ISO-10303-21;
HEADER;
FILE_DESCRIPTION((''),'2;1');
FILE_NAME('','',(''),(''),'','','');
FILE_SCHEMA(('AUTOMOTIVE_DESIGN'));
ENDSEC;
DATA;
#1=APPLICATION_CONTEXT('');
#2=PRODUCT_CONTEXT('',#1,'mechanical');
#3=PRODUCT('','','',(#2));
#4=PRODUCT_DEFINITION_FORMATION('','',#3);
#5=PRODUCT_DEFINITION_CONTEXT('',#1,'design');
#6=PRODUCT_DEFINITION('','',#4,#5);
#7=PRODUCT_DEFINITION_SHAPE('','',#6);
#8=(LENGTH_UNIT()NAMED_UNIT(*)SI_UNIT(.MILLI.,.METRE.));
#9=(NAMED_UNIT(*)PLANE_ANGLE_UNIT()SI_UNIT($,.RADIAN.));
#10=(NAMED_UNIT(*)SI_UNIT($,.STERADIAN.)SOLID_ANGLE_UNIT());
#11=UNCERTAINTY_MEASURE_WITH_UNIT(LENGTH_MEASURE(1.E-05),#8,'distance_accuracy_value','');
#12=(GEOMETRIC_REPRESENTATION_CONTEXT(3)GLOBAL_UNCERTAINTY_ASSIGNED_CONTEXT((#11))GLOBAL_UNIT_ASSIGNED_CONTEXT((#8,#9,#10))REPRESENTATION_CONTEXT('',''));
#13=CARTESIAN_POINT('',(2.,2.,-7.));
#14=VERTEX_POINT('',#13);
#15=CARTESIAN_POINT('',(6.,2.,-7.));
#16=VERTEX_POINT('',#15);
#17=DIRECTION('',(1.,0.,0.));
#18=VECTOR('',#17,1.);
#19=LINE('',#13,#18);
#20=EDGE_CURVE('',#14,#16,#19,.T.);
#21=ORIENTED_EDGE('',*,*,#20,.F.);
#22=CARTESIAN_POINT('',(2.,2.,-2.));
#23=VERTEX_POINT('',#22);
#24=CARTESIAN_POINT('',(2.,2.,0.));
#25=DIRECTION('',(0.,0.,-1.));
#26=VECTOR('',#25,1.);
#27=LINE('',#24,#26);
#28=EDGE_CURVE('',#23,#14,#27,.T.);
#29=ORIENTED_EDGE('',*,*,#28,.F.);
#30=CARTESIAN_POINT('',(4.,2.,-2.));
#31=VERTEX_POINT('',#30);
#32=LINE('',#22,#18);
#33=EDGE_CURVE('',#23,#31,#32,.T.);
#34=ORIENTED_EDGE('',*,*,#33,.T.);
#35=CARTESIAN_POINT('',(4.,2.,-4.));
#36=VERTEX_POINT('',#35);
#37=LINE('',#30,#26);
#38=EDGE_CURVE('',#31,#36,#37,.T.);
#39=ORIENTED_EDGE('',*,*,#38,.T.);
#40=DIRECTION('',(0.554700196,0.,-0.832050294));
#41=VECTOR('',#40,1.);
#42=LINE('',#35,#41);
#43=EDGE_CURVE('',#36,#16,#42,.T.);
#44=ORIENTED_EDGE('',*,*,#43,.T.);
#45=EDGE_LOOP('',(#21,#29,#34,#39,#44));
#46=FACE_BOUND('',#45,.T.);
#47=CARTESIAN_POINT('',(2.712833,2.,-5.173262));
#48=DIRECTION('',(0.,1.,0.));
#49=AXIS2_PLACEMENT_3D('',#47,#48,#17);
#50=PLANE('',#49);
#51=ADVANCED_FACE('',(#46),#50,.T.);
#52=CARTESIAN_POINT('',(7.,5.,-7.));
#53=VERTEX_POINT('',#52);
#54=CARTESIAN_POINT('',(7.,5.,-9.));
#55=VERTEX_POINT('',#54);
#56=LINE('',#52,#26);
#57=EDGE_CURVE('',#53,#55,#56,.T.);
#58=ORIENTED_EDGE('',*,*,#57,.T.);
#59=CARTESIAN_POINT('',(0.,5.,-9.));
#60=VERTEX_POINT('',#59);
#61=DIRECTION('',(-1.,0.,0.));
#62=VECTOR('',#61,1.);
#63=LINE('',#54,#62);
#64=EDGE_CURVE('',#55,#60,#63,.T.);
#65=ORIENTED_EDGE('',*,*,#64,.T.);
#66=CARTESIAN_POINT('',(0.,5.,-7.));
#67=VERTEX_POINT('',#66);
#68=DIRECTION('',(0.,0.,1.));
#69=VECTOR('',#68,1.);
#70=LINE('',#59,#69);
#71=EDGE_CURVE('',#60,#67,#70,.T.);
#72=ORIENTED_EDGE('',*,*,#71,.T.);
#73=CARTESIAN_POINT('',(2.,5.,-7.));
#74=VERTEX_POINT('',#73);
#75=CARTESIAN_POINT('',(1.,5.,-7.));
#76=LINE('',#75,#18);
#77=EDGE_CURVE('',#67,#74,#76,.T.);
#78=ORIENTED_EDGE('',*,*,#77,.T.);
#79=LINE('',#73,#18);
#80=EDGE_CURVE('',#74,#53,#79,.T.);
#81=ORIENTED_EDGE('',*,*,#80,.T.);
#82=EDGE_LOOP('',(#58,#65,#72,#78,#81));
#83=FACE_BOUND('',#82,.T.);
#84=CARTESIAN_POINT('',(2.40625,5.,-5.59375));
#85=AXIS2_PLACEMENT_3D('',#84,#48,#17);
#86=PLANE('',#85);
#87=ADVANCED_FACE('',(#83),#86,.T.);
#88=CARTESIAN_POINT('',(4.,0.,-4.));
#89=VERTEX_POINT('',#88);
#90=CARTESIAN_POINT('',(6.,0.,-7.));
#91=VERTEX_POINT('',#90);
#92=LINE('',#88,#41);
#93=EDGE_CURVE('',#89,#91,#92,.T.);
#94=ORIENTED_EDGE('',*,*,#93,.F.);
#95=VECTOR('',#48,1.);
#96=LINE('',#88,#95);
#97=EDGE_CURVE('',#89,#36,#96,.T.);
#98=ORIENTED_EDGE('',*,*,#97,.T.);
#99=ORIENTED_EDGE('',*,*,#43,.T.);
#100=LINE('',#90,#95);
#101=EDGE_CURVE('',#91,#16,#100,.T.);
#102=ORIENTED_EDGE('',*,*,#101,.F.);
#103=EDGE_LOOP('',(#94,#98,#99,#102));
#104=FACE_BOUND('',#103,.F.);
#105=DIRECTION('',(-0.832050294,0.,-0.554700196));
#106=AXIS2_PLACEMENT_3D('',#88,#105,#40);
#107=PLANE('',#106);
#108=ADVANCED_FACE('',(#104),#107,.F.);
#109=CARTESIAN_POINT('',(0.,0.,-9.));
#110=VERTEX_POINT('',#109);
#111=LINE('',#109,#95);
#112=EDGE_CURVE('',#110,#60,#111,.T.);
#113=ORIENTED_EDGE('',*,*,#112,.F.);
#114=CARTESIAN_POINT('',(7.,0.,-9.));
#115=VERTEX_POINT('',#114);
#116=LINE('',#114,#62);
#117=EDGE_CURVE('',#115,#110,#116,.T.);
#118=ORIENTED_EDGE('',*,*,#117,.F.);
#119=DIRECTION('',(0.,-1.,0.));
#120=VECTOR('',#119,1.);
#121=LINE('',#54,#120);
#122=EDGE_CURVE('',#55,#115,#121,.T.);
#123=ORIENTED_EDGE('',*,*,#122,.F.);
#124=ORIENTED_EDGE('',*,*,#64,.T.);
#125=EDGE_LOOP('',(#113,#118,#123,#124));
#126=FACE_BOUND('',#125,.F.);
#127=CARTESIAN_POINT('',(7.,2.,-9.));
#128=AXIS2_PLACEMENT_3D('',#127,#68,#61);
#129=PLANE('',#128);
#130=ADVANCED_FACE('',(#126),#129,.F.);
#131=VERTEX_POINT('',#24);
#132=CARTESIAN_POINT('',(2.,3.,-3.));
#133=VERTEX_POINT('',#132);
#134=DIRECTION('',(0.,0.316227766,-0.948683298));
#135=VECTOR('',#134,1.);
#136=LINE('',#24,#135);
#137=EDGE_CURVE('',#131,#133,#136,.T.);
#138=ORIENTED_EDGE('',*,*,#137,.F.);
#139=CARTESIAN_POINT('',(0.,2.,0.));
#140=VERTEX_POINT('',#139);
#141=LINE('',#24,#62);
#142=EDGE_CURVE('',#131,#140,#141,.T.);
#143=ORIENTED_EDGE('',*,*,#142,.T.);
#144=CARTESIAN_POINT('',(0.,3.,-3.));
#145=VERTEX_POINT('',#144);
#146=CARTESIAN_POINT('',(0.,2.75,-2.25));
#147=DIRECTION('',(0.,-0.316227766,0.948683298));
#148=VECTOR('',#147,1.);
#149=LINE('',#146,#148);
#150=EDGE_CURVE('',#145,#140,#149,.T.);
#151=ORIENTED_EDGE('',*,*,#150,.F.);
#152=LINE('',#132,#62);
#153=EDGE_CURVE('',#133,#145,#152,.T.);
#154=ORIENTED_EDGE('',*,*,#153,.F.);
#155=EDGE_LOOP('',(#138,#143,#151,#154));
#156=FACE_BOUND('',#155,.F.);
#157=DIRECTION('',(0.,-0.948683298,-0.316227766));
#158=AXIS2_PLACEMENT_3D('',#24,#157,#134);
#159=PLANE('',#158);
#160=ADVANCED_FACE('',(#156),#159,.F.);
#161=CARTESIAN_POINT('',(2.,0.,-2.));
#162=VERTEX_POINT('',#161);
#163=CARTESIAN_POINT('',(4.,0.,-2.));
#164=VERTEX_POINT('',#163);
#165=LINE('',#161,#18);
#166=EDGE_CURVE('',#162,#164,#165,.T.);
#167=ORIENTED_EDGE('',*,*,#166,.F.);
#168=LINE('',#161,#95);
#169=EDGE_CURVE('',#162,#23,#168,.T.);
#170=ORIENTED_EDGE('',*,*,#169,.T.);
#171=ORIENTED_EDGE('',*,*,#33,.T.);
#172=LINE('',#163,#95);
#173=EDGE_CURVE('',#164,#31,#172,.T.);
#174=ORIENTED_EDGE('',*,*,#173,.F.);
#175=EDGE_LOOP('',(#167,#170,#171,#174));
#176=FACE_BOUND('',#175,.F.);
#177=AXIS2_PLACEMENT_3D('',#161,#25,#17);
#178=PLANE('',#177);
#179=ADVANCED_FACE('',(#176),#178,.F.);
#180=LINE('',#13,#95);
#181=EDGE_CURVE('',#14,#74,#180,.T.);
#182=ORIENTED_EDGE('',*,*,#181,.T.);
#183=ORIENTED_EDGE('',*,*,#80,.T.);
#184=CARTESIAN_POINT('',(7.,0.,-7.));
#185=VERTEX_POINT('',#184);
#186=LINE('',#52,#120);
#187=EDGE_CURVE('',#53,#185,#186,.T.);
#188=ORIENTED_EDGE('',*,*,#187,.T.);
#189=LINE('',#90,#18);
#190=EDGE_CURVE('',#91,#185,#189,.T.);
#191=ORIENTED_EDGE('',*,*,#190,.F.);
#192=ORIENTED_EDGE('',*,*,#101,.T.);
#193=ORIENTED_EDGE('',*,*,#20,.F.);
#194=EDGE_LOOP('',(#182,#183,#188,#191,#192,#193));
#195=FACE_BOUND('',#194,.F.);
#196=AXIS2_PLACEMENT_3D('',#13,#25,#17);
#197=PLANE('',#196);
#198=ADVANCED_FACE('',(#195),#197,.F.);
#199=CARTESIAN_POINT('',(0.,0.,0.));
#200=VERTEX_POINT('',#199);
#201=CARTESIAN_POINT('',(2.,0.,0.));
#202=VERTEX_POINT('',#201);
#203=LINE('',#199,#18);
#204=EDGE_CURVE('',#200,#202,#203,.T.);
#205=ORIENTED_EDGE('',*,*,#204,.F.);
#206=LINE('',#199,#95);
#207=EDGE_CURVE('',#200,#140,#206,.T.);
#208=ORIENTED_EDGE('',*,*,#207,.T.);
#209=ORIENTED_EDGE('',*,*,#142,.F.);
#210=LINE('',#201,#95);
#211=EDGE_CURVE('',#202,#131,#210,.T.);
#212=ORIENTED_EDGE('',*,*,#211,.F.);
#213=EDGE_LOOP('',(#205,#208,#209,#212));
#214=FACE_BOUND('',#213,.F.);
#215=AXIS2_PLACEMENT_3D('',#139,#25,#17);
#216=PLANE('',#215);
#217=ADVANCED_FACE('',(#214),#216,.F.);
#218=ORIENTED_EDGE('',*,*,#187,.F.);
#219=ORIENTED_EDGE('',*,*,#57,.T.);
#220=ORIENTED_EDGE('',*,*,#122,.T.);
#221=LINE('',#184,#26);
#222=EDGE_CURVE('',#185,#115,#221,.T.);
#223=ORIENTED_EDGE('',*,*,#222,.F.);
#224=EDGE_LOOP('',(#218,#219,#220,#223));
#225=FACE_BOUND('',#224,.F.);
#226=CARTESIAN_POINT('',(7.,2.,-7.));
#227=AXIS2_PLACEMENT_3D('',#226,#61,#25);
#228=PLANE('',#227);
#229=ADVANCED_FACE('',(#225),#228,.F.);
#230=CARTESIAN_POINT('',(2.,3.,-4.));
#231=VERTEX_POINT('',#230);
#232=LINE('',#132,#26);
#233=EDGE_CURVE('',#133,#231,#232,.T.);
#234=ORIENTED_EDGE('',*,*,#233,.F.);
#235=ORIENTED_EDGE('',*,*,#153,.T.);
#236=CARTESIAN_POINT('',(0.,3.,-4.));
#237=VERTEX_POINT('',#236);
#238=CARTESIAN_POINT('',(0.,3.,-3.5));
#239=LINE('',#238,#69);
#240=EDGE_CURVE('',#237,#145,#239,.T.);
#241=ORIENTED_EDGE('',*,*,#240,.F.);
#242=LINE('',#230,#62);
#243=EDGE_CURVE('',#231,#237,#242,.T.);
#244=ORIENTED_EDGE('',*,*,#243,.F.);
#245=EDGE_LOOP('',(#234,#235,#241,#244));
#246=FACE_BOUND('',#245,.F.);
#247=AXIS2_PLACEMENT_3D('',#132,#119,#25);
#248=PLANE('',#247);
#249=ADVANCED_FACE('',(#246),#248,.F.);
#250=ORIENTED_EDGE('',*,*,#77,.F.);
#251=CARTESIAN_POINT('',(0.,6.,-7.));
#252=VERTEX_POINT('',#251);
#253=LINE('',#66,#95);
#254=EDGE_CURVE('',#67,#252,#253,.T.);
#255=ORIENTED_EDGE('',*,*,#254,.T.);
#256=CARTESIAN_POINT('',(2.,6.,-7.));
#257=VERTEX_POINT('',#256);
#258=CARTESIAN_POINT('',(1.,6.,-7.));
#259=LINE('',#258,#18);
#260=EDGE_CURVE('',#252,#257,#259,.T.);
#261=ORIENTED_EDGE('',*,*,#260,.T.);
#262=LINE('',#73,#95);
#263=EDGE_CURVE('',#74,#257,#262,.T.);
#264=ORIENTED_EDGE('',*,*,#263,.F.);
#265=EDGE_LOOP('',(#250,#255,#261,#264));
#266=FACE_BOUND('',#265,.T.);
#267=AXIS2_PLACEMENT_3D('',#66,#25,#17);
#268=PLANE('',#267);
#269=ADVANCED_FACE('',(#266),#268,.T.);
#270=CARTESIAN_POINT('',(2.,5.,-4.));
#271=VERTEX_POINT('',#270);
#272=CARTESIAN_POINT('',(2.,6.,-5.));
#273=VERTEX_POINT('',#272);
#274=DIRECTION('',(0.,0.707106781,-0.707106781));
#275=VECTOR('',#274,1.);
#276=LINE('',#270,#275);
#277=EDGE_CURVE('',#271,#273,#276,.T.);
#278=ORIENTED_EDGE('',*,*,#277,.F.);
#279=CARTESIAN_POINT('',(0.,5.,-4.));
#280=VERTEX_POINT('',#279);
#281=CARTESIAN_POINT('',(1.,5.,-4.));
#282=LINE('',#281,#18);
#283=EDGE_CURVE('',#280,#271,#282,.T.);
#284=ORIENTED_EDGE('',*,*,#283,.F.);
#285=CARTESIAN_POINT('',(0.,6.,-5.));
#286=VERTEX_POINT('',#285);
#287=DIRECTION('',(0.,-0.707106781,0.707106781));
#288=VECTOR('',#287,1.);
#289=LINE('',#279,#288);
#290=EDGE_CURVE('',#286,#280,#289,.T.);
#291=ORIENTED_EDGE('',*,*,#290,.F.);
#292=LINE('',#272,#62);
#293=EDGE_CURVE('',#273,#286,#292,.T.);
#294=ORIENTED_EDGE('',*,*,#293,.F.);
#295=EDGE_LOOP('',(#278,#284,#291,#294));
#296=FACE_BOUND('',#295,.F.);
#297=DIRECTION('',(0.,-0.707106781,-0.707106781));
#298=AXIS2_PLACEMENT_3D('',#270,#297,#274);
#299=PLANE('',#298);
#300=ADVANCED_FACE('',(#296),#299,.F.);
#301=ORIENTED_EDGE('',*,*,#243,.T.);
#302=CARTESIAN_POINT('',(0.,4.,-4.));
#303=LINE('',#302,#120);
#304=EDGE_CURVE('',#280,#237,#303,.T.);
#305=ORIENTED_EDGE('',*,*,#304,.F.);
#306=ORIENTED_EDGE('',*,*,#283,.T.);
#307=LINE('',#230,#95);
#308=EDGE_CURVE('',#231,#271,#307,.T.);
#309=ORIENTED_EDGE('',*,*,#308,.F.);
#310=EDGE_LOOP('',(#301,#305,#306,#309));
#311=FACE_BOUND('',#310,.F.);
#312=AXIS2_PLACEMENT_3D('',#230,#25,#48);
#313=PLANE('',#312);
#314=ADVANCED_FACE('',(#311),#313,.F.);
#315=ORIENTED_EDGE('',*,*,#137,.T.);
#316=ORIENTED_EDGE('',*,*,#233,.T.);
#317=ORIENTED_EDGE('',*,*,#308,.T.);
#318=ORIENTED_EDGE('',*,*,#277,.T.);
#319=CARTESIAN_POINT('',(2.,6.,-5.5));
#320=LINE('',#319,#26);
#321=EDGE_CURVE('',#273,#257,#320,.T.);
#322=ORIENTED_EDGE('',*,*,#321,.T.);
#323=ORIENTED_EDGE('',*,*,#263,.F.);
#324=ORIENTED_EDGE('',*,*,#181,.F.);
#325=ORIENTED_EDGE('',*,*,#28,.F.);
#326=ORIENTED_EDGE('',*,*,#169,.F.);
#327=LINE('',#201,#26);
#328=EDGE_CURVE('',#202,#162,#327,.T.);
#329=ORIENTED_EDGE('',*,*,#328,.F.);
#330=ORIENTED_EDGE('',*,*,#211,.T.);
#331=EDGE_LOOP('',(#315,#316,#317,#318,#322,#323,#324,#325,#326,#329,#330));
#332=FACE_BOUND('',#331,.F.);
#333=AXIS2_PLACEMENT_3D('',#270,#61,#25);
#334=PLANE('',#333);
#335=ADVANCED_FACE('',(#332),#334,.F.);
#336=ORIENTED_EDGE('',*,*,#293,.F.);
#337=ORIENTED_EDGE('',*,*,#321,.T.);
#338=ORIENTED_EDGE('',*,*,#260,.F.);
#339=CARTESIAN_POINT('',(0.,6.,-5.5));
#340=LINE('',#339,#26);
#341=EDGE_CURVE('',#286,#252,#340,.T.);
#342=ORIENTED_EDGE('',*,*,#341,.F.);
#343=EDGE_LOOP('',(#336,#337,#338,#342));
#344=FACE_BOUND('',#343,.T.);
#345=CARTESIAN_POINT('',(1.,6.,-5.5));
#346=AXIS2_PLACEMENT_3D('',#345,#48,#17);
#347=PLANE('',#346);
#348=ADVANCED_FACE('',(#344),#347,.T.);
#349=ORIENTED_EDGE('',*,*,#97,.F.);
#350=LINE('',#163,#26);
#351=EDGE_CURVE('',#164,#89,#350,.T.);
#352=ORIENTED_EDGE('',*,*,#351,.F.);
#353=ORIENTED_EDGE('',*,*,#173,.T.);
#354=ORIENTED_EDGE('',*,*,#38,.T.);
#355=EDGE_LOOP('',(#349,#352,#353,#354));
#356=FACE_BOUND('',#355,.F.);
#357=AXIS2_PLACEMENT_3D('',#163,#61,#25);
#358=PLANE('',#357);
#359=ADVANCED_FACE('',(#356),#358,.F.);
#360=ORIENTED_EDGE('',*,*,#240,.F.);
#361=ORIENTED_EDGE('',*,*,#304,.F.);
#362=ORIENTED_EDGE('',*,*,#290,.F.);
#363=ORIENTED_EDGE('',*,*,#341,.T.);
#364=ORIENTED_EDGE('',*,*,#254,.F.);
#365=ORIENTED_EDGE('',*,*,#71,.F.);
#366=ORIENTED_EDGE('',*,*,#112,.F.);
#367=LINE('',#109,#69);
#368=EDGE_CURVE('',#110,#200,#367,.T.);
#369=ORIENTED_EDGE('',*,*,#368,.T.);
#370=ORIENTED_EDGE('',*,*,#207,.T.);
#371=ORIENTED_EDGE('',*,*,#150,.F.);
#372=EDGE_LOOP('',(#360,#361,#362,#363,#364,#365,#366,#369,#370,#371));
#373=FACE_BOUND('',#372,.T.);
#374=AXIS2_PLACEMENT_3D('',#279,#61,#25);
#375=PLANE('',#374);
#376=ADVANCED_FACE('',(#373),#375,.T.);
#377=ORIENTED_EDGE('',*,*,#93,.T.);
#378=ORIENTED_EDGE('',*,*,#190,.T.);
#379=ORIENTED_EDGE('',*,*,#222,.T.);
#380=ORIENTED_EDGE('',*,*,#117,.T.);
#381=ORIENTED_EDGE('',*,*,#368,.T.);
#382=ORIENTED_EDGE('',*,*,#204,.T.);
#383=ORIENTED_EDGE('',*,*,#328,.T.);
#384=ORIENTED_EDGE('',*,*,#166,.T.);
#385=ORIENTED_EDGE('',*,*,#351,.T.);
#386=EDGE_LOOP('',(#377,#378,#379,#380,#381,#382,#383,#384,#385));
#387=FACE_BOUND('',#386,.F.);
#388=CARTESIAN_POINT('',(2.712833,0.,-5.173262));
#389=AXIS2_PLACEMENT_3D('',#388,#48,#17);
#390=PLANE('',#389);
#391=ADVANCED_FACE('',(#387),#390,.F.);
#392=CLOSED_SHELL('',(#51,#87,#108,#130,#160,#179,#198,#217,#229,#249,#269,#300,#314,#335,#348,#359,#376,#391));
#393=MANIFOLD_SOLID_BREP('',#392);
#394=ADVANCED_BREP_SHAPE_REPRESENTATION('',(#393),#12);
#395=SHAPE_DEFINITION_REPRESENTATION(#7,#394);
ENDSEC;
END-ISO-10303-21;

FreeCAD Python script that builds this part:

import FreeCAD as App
import Part
import Sketcher


def add_polygon(sketch, points):
    """Adds a closed chain of lines whose ends are joined by coincident constraints."""
    first, n = sketch.GeometryCount, len(points)
    for a, b in zip(points, points[1:] + points[:1]):
        sketch.addGeometry(Part.LineSegment(App.Vector(*a, 0), App.Vector(*b, 0)), False)
    for i in range(n):
        sketch.addConstraint(Sketcher.Constraint("Coincident", first + i, 2, first + (i + 1) % n, 1))

doc = App.newDocument("Part")
body = doc.addObject("PartDesign::Body", "Body")

sketch1 = body.newObject("Sketcher::SketchObject", "Sketch")
sketch1.AttachmentSupport = (doc.getObject("XZ_Plane"), [""])
sketch1.MapMode = "FlatFace"
add_polygon(sketch1, [(0, 0), (2, 0), (2, -2), (4, -2), (4, -4), (6, -7), (7, -7), (7, -9), (0, -9)])
sketch1.addConstraint([
    Sketcher.Constraint("Horizontal", 0),
    Sketcher.Constraint("Vertical", 1),
    Sketcher.Constraint("Horizontal", 2),
    Sketcher.Constraint("Vertical", 3),
    Sketcher.Constraint("Horizontal", 5),
    Sketcher.Constraint("Vertical", 6),
    Sketcher.Constraint("Horizontal", 7),
    Sketcher.Constraint("Vertical", 8),
    Sketcher.Constraint("Coincident", 8, 2, -1, 1),
    Sketcher.Constraint("Equal", 0, 2),
    Sketcher.Constraint("Equal", 2, 1),
    Sketcher.Constraint("Equal", 1, 3),
    Sketcher.Constraint("Equal", 3, 6),
    Sketcher.Constraint("DistanceX", 0, 1, 0, 2, 2.0),
    Sketcher.Constraint("DistanceX", 5, 1, 5, 2, 1.0),
    Sketcher.Constraint("DistanceX", 7, 2, 7, 1, 7.0),
    Sketcher.Constraint("DistanceY", 8, 1, 8, 2, 9.0),
])
pad1 = body.newObject("PartDesign::Pad", "Pad")
pad1.Profile = sketch1
pad1.Length = 2
pad1.Reversed = True

sketch2 = body.newObject("Sketcher::SketchObject", "Sketch001")
sketch2.AttachmentSupport = (doc.getObject("XZ_Plane"), [""])
sketch2.MapMode = "FlatFace"
sketch2.AttachmentOffset = App.Placement(App.Vector(0, 0, -2), App.Rotation())
add_polygon(sketch2, [(7, -9), (0, -9), (0, 0), (2, 0), (2, -7), (7, -7)])
sketch2.addConstraint([
    Sketcher.Constraint("Horizontal", 0),
    Sketcher.Constraint("Vertical", 1),
    Sketcher.Constraint("Horizontal", 2),
    Sketcher.Constraint("Vertical", 3),
    Sketcher.Constraint("Horizontal", 4),
    Sketcher.Constraint("Vertical", 5),
    Sketcher.Constraint("Coincident", 1, 2, -1, 1),
    Sketcher.Constraint("Equal", 0, 3),
    Sketcher.Constraint("Equal", 2, 5),
    Sketcher.Constraint("DistanceX", 0, 2, 0, 1, 7.0),
    Sketcher.Constraint("DistanceX", 2, 1, 2, 2, 2.0),
])
pad2 = body.newObject("PartDesign::Pad", "Pad001")
pad2.Profile = sketch2
pad2.Length = 3
pad2.Reversed = True

sketch3 = body.newObject("Sketcher::SketchObject", "Sketch002")
sketch3.AttachmentSupport = (doc.getObject("XZ_Plane"), [""])
sketch3.MapMode = "FlatFace"
sketch3.AttachmentOffset = App.Placement(App.Vector(0, 0, -5), App.Rotation())
add_polygon(sketch3, [(0, -7), (0, -4), (2, -4), (2, -7)])
sketch3.addConstraint([
    Sketcher.Constraint("Vertical", 0),
    Sketcher.Constraint("Horizontal", 1),
    Sketcher.Constraint("Vertical", 2),
    Sketcher.Constraint("Horizontal", 3),
    Sketcher.Constraint("PointOnObject", 0, 2, -2),
    Sketcher.Constraint("DistanceX", 1, 1, 1, 2, 2.0),
    Sketcher.Constraint("DistanceY", 0, 1, 0, 2, 3.0),
    Sketcher.Constraint("DistanceY", 0, 2, -1, 1, 4.0),
])
pad3 = body.newObject("PartDesign::Pad", "Pad002")
pad3.Profile = sketch3
pad3.Length = 1
pad3.Reversed = True

sketch4 = body.newObject("Sketcher::SketchObject", "Sketch003")
sketch4.AttachmentSupport = (doc.getObject("YZ_Plane"), [""])
sketch4.MapMode = "FlatFace"
sketch4.AttachmentOffset = App.Placement(App.Vector(0, 0, 2), App.Rotation())
add_polygon(sketch4, [(5, -4), (6, -5), (6, -4)])
add_polygon(sketch4, [(3, -4), (5, -4), (5, 0), (2, 0), (3, -3)])
sketch4.addConstraint([
    Sketcher.Constraint("Vertical", 1),
    Sketcher.Constraint("Horizontal", 2),
    Sketcher.Constraint("Horizontal", 3),
    Sketcher.Constraint("Vertical", 4),
    Sketcher.Constraint("Horizontal", 5),
    Sketcher.Constraint("Vertical", 7),
    Sketcher.Constraint("Coincident", 3, 2, 2, 2),
    Sketcher.Constraint("PointOnObject", 4, 2, -1),
    Sketcher.Constraint("Equal", 2, 1),
    Sketcher.Constraint("Equal", 1, 7),
    Sketcher.Constraint("DistanceX", 2, 2, 2, 1, 1.0),
    Sketcher.Constraint("DistanceX", 3, 1, 3, 2, 2.0),
    Sketcher.Constraint("DistanceX", 5, 2, 5, 1, 3.0),
    Sketcher.Constraint("DistanceY", 4, 1, 4, 2, 4.0),
    Sketcher.Constraint("DistanceX", -1, 1, 0, 2, 6.0),
])
pocket1 = body.newObject("PartDesign::Pocket", "Pocket")
pocket1.Profile = sketch4
pocket1.Type = "ThroughAll"

doc.recompute()
